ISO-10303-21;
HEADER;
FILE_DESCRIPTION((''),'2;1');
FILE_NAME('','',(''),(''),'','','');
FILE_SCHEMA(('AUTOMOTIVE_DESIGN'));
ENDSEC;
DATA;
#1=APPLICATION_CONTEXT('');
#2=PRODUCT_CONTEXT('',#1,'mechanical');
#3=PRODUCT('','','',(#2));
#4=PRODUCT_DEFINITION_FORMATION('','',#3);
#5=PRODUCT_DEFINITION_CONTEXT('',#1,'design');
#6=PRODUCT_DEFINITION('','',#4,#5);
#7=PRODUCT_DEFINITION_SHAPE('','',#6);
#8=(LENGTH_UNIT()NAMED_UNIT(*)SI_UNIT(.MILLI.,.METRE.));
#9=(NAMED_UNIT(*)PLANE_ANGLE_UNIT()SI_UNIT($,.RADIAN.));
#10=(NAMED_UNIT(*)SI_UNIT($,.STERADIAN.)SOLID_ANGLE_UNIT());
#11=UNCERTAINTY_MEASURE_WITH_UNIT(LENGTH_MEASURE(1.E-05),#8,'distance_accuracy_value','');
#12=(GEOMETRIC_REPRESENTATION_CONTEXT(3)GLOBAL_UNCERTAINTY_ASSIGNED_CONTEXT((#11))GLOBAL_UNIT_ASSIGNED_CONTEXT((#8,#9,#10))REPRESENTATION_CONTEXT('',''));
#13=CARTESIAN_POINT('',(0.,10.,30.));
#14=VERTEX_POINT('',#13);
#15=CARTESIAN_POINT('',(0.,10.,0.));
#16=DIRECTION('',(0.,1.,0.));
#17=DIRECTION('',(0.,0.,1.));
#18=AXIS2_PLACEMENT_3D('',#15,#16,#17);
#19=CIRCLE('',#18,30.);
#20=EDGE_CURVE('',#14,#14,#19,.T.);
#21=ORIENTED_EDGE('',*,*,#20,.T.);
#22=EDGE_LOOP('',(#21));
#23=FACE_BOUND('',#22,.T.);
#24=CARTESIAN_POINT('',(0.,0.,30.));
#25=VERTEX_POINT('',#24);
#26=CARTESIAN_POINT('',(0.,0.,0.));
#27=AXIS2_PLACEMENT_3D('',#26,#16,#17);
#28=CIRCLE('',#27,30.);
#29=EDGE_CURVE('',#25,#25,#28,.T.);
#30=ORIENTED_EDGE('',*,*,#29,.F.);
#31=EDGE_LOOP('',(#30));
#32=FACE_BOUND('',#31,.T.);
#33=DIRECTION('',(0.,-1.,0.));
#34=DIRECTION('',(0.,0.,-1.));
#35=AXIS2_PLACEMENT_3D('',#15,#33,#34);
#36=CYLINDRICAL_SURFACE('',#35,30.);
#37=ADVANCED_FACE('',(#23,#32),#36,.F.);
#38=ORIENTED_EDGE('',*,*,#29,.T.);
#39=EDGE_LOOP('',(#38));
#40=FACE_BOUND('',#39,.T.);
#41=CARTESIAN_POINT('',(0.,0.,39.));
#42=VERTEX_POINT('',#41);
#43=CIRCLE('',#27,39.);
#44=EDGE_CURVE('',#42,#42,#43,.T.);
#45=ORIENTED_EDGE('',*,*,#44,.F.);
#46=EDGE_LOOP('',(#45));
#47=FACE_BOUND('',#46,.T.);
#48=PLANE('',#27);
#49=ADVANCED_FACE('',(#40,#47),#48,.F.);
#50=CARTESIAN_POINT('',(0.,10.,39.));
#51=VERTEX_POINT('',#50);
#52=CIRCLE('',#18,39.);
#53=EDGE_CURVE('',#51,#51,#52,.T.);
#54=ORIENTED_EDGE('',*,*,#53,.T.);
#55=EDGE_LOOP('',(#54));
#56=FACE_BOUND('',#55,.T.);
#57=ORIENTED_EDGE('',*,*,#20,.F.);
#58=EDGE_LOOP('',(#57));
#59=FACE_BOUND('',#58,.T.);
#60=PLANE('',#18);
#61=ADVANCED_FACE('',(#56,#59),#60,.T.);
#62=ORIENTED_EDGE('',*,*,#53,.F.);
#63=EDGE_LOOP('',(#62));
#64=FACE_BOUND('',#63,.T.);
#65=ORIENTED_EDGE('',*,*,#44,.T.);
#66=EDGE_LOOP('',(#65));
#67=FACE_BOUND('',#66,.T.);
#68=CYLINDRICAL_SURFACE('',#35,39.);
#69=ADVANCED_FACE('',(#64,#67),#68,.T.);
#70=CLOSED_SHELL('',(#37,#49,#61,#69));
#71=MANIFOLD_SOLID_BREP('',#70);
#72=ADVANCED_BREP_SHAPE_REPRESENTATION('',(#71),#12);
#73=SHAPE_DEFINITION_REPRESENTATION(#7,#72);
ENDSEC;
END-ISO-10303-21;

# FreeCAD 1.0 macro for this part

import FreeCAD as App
import Part
import Sketcher
from FreeCAD import Vector

doc = App.newDocument("Part")
body = doc.addObject("PartDesign::Body", "Body")

sketch1 = body.newObject("Sketcher::SketchObject", "Sketch")
sketch1.AttachmentSupport = (doc.getObject("XZ_Plane"), [""])
sketch1.MapMode = "FlatFace"
sketch1.addGeometry(Part.Circle(Vector(0, 0, 0), Vector(0, 0, 1), 39), False)
sketch1.addGeometry(Part.Circle(Vector(0, 0, 0), Vector(0, 0, 1), 30), False)
sketch1.addConstraint(Sketcher.Constraint("Coincident", 0, 3, -1, 1))
sketch1.addConstraint(Sketcher.Constraint("Coincident", 1, 3, -1, 1))
sketch1.addConstraint(Sketcher.Constraint("Diameter", 0, 78.0))
sketch1.addConstraint(Sketcher.Constraint("Diameter", 1, 60.0))
pad1 = body.newObject("PartDesign::Pad", "Pad")
pad1.Profile = sketch1
pad1.Length = 10
pad1.Reversed = True

doc.recompute()
